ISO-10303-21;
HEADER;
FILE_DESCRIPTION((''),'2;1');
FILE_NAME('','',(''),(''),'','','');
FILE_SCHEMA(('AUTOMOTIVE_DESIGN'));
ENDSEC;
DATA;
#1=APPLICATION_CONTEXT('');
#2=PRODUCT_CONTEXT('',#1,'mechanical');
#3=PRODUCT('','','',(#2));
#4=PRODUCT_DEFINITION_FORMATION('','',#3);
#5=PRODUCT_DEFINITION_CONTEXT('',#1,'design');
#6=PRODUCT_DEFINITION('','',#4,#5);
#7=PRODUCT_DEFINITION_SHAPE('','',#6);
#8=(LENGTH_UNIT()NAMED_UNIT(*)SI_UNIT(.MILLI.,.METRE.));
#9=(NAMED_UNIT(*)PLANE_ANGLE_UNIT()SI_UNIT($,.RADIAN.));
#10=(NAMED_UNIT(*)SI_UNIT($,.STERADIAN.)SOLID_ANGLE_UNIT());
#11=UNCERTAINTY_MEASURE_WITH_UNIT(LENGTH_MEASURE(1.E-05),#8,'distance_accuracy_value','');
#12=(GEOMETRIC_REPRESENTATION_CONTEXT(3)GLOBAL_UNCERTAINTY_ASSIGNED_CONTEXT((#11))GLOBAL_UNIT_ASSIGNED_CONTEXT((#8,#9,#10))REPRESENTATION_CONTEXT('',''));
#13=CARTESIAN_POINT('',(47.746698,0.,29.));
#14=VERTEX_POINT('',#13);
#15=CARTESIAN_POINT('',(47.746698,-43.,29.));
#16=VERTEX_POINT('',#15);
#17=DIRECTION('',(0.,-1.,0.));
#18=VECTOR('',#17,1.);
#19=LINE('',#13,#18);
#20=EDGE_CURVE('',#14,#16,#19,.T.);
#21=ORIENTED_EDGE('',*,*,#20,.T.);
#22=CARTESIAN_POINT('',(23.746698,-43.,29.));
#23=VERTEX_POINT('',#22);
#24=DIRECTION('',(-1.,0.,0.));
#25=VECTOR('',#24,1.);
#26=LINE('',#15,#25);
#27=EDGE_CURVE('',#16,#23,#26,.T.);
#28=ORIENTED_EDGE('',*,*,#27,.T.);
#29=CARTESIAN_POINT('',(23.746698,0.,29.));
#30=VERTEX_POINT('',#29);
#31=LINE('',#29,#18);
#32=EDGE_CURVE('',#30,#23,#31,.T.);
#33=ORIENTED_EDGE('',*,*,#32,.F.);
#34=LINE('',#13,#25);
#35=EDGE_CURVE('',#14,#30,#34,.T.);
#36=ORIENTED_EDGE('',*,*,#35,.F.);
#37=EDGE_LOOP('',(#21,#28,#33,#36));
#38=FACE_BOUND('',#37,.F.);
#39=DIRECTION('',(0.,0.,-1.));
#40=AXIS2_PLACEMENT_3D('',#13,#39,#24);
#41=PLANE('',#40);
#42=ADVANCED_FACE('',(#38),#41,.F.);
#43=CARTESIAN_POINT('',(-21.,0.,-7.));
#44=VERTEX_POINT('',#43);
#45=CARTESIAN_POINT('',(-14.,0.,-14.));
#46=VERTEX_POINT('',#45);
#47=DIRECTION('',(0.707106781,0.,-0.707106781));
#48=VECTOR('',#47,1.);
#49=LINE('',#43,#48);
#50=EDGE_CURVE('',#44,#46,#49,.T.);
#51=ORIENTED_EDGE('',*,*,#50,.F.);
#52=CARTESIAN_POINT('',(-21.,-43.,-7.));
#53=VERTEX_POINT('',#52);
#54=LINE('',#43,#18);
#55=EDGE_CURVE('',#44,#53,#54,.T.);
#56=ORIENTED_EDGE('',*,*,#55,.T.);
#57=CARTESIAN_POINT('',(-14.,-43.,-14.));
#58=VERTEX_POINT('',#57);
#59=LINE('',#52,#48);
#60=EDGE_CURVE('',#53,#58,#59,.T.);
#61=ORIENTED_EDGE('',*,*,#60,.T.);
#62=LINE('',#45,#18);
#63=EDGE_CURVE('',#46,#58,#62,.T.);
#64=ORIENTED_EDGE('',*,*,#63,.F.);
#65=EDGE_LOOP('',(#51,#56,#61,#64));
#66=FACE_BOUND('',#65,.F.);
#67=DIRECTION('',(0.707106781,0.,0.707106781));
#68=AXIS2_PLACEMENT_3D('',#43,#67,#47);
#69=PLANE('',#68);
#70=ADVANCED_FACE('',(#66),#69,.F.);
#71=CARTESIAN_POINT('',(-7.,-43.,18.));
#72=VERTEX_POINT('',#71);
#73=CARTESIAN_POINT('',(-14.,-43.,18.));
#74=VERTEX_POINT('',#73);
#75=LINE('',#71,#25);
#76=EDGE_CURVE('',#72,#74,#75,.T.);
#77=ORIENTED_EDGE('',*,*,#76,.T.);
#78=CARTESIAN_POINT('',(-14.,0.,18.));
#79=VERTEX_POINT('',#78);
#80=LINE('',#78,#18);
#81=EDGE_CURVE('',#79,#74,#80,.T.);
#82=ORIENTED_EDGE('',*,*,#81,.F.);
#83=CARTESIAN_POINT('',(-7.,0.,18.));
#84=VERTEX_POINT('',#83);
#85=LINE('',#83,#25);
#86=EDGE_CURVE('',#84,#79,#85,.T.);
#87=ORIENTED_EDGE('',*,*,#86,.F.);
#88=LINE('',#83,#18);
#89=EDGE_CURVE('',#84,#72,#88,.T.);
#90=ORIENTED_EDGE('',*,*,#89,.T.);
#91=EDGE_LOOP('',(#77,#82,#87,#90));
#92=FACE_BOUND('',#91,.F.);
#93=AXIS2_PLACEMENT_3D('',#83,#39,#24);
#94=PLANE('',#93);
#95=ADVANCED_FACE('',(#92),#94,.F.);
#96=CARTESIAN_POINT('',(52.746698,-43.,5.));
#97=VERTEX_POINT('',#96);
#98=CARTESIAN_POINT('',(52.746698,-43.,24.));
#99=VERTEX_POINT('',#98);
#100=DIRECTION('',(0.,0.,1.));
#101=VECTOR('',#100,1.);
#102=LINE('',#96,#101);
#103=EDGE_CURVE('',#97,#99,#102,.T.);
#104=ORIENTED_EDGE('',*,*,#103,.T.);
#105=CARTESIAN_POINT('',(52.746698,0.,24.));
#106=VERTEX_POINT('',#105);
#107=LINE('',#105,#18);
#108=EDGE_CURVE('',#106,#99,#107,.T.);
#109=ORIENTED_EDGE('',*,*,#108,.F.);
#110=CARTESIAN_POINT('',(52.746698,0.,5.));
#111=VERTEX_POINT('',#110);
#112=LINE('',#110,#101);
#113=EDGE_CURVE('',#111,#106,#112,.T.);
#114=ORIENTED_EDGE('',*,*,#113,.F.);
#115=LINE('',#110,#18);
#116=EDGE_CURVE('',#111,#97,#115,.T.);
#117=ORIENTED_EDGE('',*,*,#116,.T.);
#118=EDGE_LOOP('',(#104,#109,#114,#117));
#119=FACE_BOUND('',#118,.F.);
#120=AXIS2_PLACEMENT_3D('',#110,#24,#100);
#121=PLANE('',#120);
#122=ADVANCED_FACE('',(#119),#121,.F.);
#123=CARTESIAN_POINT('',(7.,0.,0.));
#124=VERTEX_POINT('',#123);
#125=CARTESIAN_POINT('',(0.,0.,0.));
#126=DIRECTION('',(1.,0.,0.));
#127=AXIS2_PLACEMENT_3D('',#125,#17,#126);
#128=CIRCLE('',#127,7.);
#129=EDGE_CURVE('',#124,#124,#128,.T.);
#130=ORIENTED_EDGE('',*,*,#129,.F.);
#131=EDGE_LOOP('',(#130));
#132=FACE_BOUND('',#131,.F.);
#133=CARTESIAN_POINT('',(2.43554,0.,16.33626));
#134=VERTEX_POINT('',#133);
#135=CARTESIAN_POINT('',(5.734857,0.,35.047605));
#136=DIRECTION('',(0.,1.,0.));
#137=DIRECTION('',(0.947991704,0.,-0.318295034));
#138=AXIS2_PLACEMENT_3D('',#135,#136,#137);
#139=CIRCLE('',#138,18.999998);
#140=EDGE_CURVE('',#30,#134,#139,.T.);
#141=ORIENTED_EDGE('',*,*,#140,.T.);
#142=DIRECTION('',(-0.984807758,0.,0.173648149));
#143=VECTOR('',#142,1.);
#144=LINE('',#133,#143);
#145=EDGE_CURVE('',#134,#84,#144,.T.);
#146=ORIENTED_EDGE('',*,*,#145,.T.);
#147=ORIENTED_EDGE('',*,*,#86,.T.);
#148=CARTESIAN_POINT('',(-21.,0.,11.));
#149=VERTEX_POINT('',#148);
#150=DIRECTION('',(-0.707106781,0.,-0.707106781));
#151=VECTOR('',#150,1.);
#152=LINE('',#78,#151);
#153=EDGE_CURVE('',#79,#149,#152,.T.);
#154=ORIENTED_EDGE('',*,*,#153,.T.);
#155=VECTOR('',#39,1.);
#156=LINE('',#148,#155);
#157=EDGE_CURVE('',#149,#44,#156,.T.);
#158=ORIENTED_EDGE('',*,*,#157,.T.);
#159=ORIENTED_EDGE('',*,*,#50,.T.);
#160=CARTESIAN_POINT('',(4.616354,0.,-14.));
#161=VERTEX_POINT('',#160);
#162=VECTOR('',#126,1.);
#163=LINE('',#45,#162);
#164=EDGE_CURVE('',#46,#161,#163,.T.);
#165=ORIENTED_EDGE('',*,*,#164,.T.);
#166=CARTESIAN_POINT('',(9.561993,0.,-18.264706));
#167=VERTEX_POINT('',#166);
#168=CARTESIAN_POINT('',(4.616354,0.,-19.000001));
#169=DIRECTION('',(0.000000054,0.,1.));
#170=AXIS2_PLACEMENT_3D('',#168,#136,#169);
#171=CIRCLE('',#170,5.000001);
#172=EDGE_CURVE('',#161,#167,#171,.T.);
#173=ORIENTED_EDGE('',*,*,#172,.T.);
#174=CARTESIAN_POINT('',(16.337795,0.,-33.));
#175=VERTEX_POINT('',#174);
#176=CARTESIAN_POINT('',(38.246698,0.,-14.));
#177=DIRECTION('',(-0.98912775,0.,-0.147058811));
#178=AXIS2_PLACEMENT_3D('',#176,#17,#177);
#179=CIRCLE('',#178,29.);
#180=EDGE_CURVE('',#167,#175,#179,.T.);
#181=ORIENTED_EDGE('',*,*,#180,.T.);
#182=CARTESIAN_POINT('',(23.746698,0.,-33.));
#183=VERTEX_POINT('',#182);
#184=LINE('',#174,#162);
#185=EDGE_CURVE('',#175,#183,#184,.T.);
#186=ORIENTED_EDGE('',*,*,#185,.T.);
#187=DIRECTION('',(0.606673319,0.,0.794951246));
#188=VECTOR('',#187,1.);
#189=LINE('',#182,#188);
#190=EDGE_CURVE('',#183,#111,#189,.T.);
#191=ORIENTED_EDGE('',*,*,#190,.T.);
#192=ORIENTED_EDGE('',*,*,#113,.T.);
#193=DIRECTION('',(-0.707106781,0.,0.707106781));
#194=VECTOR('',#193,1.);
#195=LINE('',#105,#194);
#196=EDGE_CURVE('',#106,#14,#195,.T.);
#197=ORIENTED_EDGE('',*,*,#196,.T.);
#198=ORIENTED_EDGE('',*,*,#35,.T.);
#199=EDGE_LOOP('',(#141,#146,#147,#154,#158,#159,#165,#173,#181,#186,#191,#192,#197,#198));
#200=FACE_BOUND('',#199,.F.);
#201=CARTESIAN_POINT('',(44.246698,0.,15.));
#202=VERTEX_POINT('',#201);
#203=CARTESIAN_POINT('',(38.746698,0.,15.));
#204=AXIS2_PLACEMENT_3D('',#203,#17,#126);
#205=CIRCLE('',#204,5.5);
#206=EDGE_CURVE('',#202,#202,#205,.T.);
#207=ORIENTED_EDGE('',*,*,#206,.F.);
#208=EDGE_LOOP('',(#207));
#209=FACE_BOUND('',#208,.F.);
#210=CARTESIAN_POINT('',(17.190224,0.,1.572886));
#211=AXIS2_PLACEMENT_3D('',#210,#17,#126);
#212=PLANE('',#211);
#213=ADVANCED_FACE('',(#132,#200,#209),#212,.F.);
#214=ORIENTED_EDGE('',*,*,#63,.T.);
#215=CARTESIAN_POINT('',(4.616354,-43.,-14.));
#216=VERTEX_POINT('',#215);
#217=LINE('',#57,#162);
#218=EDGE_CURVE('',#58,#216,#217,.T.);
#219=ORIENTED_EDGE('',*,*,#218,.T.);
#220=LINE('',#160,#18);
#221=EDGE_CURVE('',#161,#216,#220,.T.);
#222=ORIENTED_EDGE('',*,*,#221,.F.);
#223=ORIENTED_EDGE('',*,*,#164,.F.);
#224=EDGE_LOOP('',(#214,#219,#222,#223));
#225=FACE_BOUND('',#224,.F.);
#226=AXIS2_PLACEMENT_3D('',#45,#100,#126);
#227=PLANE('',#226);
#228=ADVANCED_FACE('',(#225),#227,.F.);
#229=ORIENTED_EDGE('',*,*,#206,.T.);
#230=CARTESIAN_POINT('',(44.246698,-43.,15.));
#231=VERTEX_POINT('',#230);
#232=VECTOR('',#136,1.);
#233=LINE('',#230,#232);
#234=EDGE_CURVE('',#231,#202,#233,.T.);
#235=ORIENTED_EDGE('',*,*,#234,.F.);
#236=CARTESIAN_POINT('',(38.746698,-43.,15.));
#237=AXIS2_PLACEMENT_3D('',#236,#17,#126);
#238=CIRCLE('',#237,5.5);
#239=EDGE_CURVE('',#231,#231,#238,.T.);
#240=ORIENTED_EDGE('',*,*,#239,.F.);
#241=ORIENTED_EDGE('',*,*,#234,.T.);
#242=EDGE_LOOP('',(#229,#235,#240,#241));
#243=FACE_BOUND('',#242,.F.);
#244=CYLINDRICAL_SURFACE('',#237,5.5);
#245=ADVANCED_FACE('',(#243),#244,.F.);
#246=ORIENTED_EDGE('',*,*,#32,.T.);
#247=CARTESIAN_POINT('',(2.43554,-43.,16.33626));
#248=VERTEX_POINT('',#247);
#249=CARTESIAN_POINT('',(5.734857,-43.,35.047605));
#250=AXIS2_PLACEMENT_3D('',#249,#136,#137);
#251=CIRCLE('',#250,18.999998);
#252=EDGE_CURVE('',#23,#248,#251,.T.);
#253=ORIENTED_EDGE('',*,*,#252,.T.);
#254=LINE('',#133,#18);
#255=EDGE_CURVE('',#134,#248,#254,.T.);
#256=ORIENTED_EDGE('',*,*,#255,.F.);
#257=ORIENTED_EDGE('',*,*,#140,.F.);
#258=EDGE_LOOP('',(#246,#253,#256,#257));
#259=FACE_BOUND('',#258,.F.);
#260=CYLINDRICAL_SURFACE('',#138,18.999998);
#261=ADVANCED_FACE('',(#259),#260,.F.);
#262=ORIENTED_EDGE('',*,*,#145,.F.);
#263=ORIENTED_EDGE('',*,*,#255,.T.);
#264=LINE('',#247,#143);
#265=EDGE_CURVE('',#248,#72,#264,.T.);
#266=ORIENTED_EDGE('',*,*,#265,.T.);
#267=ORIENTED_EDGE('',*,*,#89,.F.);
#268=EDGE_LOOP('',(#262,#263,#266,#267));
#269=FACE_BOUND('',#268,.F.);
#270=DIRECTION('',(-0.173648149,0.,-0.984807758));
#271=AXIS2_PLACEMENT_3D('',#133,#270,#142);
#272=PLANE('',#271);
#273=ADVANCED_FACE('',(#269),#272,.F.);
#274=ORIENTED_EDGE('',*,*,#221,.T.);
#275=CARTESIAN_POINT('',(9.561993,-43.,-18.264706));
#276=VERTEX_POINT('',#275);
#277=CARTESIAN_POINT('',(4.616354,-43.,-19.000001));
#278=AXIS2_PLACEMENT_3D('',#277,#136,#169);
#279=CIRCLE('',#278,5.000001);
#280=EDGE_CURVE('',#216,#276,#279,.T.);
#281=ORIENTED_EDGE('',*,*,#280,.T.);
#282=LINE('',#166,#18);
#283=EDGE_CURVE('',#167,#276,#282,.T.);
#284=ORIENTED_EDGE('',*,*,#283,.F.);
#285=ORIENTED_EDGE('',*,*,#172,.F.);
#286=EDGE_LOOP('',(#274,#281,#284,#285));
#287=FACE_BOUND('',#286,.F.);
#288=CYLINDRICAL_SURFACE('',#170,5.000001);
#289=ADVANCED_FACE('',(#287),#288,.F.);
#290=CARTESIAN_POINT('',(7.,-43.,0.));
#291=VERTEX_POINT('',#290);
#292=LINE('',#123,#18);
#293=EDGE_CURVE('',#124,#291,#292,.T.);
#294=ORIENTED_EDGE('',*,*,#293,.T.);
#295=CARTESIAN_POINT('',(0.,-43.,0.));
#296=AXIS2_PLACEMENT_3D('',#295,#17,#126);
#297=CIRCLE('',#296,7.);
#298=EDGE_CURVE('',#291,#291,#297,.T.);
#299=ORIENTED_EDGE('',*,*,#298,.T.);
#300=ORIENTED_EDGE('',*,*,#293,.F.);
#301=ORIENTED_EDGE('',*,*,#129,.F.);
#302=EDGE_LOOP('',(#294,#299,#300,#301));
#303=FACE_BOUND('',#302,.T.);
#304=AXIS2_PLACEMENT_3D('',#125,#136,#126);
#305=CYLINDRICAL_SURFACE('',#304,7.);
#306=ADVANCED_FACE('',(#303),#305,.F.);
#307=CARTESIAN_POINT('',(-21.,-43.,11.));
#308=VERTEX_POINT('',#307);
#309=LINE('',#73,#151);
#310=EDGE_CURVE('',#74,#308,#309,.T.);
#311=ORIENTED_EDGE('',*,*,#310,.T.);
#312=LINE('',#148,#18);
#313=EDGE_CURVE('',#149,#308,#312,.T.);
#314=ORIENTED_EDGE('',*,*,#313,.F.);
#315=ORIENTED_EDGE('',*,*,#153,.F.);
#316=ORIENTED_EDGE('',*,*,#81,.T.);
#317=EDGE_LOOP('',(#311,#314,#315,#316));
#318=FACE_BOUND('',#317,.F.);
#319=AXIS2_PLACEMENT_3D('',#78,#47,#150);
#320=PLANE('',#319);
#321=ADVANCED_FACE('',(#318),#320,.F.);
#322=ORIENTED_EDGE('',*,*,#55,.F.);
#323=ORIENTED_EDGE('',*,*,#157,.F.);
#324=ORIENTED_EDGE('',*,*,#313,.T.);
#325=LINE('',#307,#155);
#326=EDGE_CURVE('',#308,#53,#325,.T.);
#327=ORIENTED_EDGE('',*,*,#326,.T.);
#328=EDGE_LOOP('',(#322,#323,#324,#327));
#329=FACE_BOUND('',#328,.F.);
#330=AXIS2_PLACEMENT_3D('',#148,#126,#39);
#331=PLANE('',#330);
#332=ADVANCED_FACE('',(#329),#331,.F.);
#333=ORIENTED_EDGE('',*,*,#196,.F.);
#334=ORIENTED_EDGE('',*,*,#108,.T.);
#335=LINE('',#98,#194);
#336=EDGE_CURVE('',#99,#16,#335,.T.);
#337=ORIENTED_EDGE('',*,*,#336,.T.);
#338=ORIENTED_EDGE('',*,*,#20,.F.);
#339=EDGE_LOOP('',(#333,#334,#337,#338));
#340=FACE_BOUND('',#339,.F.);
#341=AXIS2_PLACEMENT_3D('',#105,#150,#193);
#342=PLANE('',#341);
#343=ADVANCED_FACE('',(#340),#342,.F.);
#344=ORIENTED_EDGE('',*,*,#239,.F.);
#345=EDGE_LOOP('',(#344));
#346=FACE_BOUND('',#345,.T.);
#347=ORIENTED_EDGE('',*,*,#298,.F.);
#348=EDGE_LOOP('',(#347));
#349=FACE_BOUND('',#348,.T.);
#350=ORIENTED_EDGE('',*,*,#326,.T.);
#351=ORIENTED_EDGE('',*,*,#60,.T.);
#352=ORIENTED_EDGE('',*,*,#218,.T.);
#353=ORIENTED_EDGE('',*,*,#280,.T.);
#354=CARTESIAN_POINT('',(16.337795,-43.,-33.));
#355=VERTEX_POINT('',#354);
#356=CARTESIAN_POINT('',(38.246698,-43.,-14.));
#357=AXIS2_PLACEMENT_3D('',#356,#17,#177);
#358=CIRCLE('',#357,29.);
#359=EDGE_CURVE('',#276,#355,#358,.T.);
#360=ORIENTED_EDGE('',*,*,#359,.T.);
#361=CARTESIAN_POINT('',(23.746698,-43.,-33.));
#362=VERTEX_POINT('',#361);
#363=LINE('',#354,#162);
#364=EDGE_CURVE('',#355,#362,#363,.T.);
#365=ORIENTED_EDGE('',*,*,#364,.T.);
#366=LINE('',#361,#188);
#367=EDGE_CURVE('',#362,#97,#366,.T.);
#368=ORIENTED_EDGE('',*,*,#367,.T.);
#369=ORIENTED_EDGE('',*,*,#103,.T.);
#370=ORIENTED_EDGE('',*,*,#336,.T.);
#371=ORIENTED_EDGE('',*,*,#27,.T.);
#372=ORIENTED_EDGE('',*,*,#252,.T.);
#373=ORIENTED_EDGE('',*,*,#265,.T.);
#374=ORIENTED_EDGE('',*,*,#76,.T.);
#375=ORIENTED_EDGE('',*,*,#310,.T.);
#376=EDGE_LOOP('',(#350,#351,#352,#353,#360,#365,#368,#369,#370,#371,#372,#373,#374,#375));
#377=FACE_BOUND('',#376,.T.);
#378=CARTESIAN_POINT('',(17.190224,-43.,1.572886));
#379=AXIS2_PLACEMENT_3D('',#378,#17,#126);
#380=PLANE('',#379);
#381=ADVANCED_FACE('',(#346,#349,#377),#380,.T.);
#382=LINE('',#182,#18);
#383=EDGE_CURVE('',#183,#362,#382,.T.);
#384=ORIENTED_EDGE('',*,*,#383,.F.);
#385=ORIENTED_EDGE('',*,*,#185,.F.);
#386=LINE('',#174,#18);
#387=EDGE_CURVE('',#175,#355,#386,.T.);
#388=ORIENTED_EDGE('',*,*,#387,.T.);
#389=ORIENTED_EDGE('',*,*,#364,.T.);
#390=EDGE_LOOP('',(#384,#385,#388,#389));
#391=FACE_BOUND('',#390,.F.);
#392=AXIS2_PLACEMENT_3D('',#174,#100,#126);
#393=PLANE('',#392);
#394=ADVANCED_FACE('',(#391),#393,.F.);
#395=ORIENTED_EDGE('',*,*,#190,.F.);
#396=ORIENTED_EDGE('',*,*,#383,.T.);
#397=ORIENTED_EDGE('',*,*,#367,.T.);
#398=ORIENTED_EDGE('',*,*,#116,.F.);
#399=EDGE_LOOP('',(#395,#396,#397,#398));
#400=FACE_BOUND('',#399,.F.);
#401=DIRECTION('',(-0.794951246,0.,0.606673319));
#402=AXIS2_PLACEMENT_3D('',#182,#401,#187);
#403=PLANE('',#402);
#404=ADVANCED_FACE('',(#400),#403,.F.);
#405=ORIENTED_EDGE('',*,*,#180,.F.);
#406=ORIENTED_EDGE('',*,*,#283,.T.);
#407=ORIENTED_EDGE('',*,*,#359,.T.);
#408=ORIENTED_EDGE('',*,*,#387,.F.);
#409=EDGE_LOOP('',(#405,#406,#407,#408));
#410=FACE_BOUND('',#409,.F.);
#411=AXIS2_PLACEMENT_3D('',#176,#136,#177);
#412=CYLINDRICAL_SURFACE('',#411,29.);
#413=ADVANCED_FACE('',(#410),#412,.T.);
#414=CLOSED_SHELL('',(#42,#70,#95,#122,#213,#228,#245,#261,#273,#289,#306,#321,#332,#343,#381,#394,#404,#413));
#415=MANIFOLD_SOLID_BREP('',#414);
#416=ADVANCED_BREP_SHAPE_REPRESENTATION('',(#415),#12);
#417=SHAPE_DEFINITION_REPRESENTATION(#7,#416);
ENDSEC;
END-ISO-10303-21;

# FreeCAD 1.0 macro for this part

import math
import FreeCAD as App
import Part
import Sketcher
Q = App.Units.Quantity

doc = App.newDocument("Part")
body = doc.addObject("PartDesign::Body", "Body")

# Sketch on XZ plane
sketch1 = doc.addObject("Sketcher::SketchObject", "Sketch")
body.addObject(sketch1)
sketch1.AttachmentSupport = (doc.XZ_Plane, [""])
sketch1.MapMode = "FlatFace"
sketch1.addGeometry(Part.LineSegment(App.Vector(-14, 18, 0), App.Vector(-21, 11, 0)), False)
sketch1.addGeometry(Part.LineSegment(App.Vector(-21, 11, 0), App.Vector(-21, -7, 0)), False)
sketch1.addGeometry(Part.LineSegment(App.Vector(-21, -7, 0), App.Vector(-14, -14, 0)), False)
sketch1.addGeometry(Part.LineSegment(App.Vector(-14, -14, 0), App.Vector(5, -14, 0)), False)
sketch1.addGeometry(Part.ArcOfCircle(Part.Circle(App.Vector(5, -19, 0), App.Vector(0, 0, 1), 5), math.radians(8), math.radians(90)), False)
sketch1.addGeometry(Part.ArcOfCircle(Part.Circle(App.Vector(38, -14, 0), App.Vector(0, 0, 1), 29), math.radians(-172), math.radians(-139)), False)
sketch1.addGeometry(Part.LineSegment(App.Vector(16, -33, 0), App.Vector(24, -33, 0)), False)
sketch1.addGeometry(Part.LineSegment(App.Vector(24, -33, 0), App.Vector(53, 5, 0)), False)
sketch1.addGeometry(Part.LineSegment(App.Vector(53, 5, 0), App.Vector(53, 24, 0)), False)
sketch1.addGeometry(Part.LineSegment(App.Vector(53, 24, 0), App.Vector(48, 29, 0)), False)
sketch1.addGeometry(Part.LineSegment(App.Vector(48, 29, 0), App.Vector(24, 29, 0)), False)
sketch1.addGeometry(Part.ArcOfCircle(Part.Circle(App.Vector(6, 35, 0), App.Vector(0, 0, 1), 19), math.radians(-100), math.radians(-19)), False)
sketch1.addGeometry(Part.LineSegment(App.Vector(2, 16, 0), App.Vector(-7, 18, 0)), False)
sketch1.addGeometry(Part.LineSegment(App.Vector(-7, 18, 0), App.Vector(-14, 18, 0)), False)
sketch1.addGeometry(Part.Circle(App.Vector(0, 0, 0), App.Vector(0, 0, 1), 7), False)
sketch1.addConstraint(Sketcher.Constraint("Coincident", 0, 2, 1, 1))
sketch1.addConstraint(Sketcher.Constraint("Coincident", 1, 2, 2, 1))
sketch1.addConstraint(Sketcher.Constraint("Coincident", 2, 2, 3, 1))
sketch1.addConstraint(Sketcher.Constraint("Tangent", 3, 2, 4, 2))
sketch1.addConstraint(Sketcher.Constraint("Tangent", 4, 1, 5, 1))
sketch1.addConstraint(Sketcher.Constraint("Coincident", 5, 2, 6, 1))
sketch1.addConstraint(Sketcher.Constraint("Coincident", 6, 2, 7, 1))
sketch1.addConstraint(Sketcher.Constraint("Coincident", 7, 2, 8, 1))
sketch1.addConstraint(Sketcher.Constraint("Coincident", 8, 2, 9, 1))
sketch1.addConstraint(Sketcher.Constraint("Coincident", 9, 2, 10, 1))
sketch1.addConstraint(Sketcher.Constraint("Coincident", 10, 2, 11, 2))
sketch1.addConstraint(Sketcher.Constraint("Tangent", 11, 1, 12, 1))
sketch1.addConstraint(Sketcher.Constraint("Coincident", 12, 2, 13, 1))
sketch1.addConstraint(Sketcher.Constraint("Coincident", 13, 2, 0, 1))
sketch1.addConstraint(Sketcher.Constraint("Vertical", 1))
sketch1.addConstraint(Sketcher.Constraint("Horizontal", 3))
sketch1.addConstraint(Sketcher.Constraint("Horizontal", 6))
sketch1.addConstraint(Sketcher.Constraint("Vertical", 8))
sketch1.addConstraint(Sketcher.Constraint("Horizontal", 10))
sketch1.addConstraint(Sketcher.Constraint("Horizontal", 13))
sketch1.addConstraint(Sketcher.Constraint("Coincident", 14, 3, -1, 1))
sketch1.addConstraint(Sketcher.Constraint("Perpendicular", 0, 2))
sketch1.addConstraint(Sketcher.Constraint("Parallel", 2, 9))
sketch1.addConstraint(Sketcher.Constraint("Horizontal", 5, 3, 2, 2))
sketch1.addConstraint(Sketcher.Constraint("Vertical", 6, 2, 10, 2))
sketch1.addConstraint(Sketcher.Constraint("Vertical", 2, 2, 13, 2))
sketch1.addConstraint(Sketcher.Constraint("Equal", 0, 2))
sketch1.addConstraint(Sketcher.Constraint("Diameter", 14, 14.0))
sketch1.addConstraint(Sketcher.Constraint("Radius", 4, 5.000001))
sketch1.addConstraint(Sketcher.Constraint("Radius", 5, 29.0))
sketch1.addConstraint(Sketcher.Constraint("Radius", 11, 18.999998))
sketch1.addConstraint(Sketcher.Constraint("DistanceX", 10, 2, 10, 1, 24.0))
sketch1.addConstraint(Sketcher.Constraint("DistanceX", 13, 2, 13, 1, 7.0))
sketch1.addConstraint(Sketcher.Constraint("DistanceY", 1, 2, 1, 1, 18.0))
sketch1.addConstraint(Sketcher.Constraint("DistanceY", 8, 1, 8, 2, 19.0))
sketch1.addConstraint(Sketcher.Constraint("Angle", 12, Q("170.000002 deg")))
sketch1.addConstraint(Sketcher.Constraint("DistanceY", 4, 3, -1, 1, 19.000001))
sketch1.addConstraint(Sketcher.Constraint("DistanceX", 0, 2, -1, 1, 21.0))
sketch1.addConstraint(Sketcher.Constraint("DistanceY", -1, 1, 0, 2, 11.0))
sketch1.addConstraint(Sketcher.Constraint("DistanceY", 5, 2, -1, 1, 33.0))
sketch1.addConstraint(Sketcher.Constraint("DistanceY", -1, 1, 7, 2, 5.0))
sketch1.addConstraint(Sketcher.Constraint("DistanceY", -1, 1, 9, 2, 29.0))
sketch1.addConstraint(Sketcher.Constraint("DistanceX", 6, 2, 5, 3, 14.5))
sketch1.addConstraint(Sketcher.Constraint("Distance", 12, 9.581098))
pad1 = doc.addObject("PartDesign::Pad", "Pad")
body.addObject(pad1)
pad1.Profile = sketch1
pad1.Length = 43

# Sketch on XZ plane
sketch2 = doc.addObject("Sketcher::SketchObject", "Sketch001")
body.addObject(sketch2)
sketch2.AttachmentSupport = (doc.XZ_Plane, [""])
sketch2.MapMode = "FlatFace"
sketch2.AttachmentOffset = App.Placement(App.Vector(0, 0, 43), App.Rotation())
sketch2.addGeometry(Part.Circle(App.Vector(39, 15, 0), App.Vector(0, 0, 1), 6), False)
sketch2.addConstraint(Sketcher.Constraint("Diameter", 0, 11.0))
sketch2.addConstraint(Sketcher.Constraint("DistanceY", -1, 1, 0, 3, 15.0))
sketch2.addConstraint(Sketcher.Constraint("DistanceX", -1, 1, 0, 3, 38.746698))
pocket1 = doc.addObject("PartDesign::Pocket", "Pocket")
body.addObject(pocket1)
pocket1.Profile = sketch2
pocket1.Type = "ThroughAll"

doc.recompute()
